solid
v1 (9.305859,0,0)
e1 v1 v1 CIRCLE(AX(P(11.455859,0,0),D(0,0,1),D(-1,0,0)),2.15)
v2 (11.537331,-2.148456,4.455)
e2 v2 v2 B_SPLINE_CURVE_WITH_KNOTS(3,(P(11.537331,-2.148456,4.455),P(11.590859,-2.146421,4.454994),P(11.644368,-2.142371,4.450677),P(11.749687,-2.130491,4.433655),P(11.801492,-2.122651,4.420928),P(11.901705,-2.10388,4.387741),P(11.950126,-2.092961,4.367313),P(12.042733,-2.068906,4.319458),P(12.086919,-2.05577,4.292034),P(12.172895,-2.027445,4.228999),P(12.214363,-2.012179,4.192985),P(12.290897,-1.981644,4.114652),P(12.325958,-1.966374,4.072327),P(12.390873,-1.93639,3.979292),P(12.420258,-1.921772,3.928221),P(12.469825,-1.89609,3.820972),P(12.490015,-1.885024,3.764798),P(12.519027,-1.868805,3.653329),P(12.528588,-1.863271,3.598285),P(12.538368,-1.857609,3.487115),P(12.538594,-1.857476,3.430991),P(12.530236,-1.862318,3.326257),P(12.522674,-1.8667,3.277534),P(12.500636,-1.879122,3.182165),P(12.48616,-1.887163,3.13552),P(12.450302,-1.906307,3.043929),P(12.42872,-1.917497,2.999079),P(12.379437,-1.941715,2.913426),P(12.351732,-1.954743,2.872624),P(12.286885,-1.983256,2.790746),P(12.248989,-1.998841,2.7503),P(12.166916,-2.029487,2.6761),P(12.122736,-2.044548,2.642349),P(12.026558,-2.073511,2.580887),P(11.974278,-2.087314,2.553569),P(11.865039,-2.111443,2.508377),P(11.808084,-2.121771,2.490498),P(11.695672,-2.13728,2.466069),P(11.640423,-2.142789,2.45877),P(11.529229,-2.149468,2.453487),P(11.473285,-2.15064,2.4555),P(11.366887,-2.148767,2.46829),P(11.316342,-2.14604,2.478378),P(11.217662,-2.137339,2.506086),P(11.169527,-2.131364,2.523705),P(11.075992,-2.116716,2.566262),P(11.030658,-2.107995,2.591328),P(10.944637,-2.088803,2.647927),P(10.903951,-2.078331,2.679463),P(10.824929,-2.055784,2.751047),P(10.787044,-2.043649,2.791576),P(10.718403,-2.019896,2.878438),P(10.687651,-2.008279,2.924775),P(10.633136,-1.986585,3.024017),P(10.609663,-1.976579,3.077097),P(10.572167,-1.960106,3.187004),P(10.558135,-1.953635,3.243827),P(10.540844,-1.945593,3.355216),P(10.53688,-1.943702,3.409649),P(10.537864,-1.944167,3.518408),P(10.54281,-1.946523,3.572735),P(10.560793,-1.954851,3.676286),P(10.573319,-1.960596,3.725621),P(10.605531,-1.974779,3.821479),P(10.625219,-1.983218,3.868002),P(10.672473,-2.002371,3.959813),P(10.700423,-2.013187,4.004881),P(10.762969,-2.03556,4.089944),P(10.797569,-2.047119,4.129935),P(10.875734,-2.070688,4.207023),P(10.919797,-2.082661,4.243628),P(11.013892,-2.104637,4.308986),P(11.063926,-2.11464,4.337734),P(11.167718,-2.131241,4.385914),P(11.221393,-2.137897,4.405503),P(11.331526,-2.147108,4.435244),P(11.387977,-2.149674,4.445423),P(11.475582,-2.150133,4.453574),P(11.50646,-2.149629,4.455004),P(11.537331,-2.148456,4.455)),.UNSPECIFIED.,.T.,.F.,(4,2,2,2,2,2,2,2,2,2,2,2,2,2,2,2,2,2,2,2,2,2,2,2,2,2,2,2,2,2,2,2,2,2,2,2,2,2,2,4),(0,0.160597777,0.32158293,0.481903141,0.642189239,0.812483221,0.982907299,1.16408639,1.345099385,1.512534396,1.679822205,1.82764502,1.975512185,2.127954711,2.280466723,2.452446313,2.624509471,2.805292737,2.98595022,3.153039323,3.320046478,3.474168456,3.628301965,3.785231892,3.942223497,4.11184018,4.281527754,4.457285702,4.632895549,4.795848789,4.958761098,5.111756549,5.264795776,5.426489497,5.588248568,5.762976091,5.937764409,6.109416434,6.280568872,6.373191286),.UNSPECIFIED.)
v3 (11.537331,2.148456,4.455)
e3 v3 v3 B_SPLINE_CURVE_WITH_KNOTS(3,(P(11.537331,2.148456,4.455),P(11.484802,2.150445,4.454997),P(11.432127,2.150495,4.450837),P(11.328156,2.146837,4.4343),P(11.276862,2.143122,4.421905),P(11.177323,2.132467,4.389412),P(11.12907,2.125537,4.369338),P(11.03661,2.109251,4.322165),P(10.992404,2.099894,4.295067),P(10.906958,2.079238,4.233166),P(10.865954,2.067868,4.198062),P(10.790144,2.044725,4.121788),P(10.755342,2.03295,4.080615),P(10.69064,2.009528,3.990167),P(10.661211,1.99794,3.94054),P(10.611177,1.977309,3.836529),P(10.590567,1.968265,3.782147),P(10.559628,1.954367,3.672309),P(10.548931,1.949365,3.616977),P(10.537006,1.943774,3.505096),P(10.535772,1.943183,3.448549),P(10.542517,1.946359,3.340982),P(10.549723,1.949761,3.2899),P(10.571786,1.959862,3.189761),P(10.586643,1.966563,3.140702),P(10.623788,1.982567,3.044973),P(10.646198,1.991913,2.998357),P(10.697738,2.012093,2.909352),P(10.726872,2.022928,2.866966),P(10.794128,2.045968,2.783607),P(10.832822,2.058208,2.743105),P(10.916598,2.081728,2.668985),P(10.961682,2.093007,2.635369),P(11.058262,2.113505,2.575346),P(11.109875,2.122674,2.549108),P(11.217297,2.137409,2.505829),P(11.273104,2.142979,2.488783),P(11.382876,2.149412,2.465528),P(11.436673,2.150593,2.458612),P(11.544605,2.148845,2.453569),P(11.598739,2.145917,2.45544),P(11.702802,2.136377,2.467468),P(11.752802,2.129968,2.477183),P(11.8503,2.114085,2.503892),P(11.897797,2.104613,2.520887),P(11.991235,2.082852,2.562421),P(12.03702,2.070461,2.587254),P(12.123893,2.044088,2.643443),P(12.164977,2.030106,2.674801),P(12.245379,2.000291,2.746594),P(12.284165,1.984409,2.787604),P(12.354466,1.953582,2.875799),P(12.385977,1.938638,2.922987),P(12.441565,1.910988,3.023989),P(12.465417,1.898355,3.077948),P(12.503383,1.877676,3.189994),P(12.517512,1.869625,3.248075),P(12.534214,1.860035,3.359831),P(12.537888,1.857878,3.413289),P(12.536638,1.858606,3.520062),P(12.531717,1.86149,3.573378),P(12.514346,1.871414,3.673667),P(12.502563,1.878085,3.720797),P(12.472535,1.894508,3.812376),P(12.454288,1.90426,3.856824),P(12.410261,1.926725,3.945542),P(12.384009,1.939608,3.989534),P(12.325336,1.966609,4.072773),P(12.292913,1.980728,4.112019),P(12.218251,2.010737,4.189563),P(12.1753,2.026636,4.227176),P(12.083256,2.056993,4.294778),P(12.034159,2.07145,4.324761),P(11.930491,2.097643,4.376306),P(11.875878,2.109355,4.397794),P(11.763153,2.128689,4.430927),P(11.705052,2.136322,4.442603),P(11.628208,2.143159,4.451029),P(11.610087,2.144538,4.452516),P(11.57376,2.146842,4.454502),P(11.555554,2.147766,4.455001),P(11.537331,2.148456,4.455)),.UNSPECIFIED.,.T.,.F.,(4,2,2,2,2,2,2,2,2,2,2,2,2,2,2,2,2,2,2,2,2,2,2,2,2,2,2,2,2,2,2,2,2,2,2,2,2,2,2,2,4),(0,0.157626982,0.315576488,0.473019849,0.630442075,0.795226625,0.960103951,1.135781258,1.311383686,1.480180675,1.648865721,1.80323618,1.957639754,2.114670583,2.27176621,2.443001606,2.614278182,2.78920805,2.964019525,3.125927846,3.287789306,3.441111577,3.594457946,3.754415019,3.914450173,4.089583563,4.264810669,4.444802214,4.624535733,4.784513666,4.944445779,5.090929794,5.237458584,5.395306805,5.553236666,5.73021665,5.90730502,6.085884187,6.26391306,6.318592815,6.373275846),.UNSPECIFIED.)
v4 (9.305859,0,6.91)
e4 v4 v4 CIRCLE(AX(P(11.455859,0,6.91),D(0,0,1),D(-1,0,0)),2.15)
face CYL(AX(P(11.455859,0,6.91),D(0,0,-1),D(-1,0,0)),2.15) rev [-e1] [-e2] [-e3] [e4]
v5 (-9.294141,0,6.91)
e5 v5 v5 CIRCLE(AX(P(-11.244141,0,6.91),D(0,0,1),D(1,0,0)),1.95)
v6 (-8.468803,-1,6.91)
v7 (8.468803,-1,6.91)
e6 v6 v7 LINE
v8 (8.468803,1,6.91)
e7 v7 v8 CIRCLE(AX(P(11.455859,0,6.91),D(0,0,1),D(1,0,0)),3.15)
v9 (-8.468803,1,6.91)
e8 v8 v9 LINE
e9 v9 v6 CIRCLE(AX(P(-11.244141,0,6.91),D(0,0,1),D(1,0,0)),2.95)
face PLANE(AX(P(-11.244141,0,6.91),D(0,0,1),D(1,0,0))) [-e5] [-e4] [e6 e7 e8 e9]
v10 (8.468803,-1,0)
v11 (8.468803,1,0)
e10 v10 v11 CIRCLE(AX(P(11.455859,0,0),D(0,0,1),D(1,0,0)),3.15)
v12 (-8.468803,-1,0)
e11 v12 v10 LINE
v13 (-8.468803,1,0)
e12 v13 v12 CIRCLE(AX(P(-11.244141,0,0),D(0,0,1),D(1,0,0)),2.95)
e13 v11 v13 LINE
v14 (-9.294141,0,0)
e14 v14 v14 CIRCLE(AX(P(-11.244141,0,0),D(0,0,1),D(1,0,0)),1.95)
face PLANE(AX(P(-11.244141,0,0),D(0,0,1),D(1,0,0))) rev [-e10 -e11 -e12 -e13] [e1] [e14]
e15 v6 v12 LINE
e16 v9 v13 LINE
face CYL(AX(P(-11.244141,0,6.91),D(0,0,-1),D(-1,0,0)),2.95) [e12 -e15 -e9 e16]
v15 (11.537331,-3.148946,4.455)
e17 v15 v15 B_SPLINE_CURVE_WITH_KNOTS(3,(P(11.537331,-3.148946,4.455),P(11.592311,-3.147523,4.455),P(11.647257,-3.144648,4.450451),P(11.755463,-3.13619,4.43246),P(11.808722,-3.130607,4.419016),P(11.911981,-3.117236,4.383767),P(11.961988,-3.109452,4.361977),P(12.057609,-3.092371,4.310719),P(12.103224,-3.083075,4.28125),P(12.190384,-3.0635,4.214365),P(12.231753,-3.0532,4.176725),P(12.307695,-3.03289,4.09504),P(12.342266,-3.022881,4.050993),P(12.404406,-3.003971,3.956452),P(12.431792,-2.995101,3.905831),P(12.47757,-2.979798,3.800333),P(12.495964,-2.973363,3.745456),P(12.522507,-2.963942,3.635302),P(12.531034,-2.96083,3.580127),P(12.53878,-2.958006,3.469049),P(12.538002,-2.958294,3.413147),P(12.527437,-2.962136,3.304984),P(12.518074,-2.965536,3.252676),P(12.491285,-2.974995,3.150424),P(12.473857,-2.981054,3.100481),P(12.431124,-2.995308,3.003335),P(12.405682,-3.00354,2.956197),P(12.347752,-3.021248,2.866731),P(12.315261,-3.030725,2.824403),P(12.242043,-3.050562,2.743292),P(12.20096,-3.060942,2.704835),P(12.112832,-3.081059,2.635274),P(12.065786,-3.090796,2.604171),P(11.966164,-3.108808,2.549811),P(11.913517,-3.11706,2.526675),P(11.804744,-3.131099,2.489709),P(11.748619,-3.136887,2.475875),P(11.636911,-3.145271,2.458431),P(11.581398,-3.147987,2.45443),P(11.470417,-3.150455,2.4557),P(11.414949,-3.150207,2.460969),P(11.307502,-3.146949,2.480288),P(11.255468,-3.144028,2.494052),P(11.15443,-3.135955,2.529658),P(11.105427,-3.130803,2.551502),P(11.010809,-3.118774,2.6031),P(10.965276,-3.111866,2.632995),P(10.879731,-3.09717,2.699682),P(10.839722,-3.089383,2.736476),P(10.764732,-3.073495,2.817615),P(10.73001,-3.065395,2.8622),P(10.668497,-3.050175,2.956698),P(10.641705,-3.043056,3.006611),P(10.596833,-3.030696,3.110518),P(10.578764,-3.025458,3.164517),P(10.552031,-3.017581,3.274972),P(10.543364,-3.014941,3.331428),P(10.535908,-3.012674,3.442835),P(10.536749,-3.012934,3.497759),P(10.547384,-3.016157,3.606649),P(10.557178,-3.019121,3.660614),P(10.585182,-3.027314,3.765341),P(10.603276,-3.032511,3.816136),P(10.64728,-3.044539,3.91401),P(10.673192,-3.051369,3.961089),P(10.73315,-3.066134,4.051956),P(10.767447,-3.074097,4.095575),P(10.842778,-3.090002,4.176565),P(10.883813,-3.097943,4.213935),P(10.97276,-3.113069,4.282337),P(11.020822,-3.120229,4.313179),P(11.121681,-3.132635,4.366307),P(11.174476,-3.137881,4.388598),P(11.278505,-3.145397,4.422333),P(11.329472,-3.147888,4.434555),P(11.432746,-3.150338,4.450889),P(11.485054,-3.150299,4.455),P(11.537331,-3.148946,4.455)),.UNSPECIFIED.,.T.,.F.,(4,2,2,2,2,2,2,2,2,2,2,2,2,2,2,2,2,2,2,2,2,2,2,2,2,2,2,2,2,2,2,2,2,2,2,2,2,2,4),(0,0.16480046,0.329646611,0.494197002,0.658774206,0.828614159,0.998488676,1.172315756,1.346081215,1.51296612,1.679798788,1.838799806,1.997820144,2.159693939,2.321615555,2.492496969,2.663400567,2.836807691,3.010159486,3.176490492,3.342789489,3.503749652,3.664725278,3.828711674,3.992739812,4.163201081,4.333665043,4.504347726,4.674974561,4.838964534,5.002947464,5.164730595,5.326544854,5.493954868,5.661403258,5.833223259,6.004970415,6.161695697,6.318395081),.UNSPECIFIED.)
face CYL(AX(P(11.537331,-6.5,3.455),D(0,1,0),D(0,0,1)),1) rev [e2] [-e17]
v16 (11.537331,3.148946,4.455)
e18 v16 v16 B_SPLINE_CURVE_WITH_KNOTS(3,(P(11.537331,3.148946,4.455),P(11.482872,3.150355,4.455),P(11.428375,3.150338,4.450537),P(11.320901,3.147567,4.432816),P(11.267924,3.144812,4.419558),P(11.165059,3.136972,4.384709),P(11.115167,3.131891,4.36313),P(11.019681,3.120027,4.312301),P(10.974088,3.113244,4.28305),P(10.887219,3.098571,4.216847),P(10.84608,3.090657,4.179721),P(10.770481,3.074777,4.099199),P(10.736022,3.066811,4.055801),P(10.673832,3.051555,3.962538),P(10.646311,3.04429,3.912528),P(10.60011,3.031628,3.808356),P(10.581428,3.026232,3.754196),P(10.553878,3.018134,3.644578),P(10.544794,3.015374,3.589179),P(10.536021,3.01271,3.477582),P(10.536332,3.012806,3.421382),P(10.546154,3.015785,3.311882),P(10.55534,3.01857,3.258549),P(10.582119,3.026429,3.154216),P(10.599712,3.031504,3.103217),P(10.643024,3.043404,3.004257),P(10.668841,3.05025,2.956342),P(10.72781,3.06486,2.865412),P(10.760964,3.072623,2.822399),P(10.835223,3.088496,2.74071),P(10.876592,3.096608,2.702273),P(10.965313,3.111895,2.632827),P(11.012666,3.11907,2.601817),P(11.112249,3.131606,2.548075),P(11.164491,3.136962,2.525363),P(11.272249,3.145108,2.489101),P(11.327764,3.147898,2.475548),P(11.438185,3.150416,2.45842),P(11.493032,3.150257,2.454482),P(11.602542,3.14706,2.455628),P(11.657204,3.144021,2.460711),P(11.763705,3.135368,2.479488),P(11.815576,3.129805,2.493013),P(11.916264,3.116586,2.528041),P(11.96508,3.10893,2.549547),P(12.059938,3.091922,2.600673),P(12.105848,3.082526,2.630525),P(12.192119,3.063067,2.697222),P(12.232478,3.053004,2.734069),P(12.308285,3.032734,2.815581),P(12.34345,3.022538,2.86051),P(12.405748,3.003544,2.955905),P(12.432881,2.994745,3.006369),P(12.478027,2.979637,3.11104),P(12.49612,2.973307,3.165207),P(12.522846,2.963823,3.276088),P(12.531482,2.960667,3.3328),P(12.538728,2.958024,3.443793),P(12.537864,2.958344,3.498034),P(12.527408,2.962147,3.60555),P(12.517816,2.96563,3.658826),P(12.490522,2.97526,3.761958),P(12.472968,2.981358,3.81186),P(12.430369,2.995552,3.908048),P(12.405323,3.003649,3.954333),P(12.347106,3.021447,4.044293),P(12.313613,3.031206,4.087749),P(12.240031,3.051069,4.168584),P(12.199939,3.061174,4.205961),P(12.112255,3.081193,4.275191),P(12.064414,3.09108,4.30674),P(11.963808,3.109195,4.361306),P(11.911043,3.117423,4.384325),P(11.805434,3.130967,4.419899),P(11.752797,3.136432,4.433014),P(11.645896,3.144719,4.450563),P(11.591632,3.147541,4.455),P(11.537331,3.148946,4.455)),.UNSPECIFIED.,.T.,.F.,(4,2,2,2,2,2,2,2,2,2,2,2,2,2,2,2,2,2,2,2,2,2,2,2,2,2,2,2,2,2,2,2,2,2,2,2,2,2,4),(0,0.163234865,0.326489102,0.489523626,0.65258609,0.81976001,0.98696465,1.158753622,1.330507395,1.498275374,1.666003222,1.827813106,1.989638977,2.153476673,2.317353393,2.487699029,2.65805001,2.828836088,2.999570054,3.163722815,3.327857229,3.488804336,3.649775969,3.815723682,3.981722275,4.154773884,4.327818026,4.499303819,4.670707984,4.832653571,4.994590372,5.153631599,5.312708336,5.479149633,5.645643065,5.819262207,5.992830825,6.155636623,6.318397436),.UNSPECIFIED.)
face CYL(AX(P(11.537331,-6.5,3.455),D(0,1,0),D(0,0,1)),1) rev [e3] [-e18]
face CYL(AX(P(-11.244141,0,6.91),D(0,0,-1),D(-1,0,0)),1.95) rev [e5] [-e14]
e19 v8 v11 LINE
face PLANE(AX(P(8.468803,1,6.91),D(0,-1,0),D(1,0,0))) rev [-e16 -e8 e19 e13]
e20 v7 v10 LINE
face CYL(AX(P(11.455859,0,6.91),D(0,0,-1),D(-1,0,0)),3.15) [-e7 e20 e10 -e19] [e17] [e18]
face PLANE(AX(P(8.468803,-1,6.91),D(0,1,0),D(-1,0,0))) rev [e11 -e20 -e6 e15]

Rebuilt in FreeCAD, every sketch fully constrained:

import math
import FreeCAD as App
import Part
import Sketcher
from FreeCAD import Vector

doc = App.newDocument("Part")
body = doc.addObject("PartDesign::Body", "Body")

sketch1 = body.newObject("Sketcher::SketchObject", "Sketch")
sketch1.AttachmentSupport = (doc.getObject("XY_Plane"), [""])
sketch1.MapMode = "FlatFace"
sketch1.addGeometry(Part.LineSegment(Vector(8.5, 1, 0), Vector(-8.5, 1, 0)), False)
sketch1.addGeometry(Part.ArcOfCircle(Part.Circle(Vector(-11.2, 0, 0), Vector(0, 0, 1), 3), math.radians(20), math.radians(340)), False)
sketch1.addGeometry(Part.LineSegment(Vector(-8.5, -1, 0), Vector(8.5, -1, 0)), False)
sketch1.addGeometry(Part.ArcOfCircle(Part.Circle(Vector(11.5, 0, 0), Vector(0, 0, 1), 3.1), math.radians(-161), math.radians(161)), False)
sketch1.addGeometry(Part.Circle(Vector(-11.2, 0, 0), Vector(0, 0, 1), 1.9), False)
sketch1.addGeometry(Part.Circle(Vector(11.5, 0, 0), Vector(0, 0, 1), 2.1), False)
sketch1.addConstraint(Sketcher.Constraint("Coincident", 0, 2, 1, 1))
sketch1.addConstraint(Sketcher.Constraint("Coincident", 1, 2, 2, 1))
sketch1.addConstraint(Sketcher.Constraint("Coincident", 2, 2, 3, 1))
sketch1.addConstraint(Sketcher.Constraint("Coincident", 3, 2, 0, 1))
sketch1.addConstraint(Sketcher.Constraint("Horizontal", 0))
sketch1.addConstraint(Sketcher.Constraint("Horizontal", 2))
sketch1.addConstraint(Sketcher.Constraint("Coincident", 4, 3, 1, 3))
sketch1.addConstraint(Sketcher.Constraint("Coincident", 5, 3, 3, 3))
sketch1.addConstraint(Sketcher.Constraint("Symmetric", 0, 2, 2, 2, -1, 1))
sketch1.addConstraint(Sketcher.Constraint("PointOnObject", 1, 3, -1))
sketch1.addConstraint(Sketcher.Constraint("PointOnObject", 3, 3, -1))
sketch1.addConstraint(Sketcher.Constraint("Diameter", 4, 3.9))
sketch1.addConstraint(Sketcher.Constraint("Diameter", 5, 4.3))
sketch1.addConstraint(Sketcher.Constraint("Radius", 1, 2.95))
sketch1.addConstraint(Sketcher.Constraint("Radius", 3, 3.15))
sketch1.addConstraint(Sketcher.Constraint("DistanceY", -1, 1, 0, 2, 1.0))
sketch1.addConstraint(Sketcher.Constraint("DistanceX", 1, 3, 3, 3, 22.7))
pad1 = body.newObject("PartDesign::Pad", "Pad")
pad1.Profile = sketch1
pad1.Length = 6.91

sketch2 = body.newObject("Sketcher::SketchObject", "Sketch001")
sketch2.AttachmentSupport = (doc.getObject("XZ_Plane"), [""])
sketch2.MapMode = "FlatFace"
sketch2.AttachmentOffset = App.Placement(Vector(0, 0, -1), App.Rotation())
sketch2.addGeometry(Part.Circle(Vector(11.5, 3.5, 0), Vector(0, 0, 1), 1), False)
sketch2.addConstraint(Sketcher.Constraint("Diameter", 0, 2.0))
sketch2.addConstraint(Sketcher.Constraint("DistanceY", -1, 1, 0, 3, 3.455))
sketch2.addConstraint(Sketcher.Constraint("DistanceX", -1, 1, 0, 3, 11.537331))
pocket1 = body.newObject("PartDesign::Pocket", "Pocket")
pocket1.Profile = sketch2
pocket1.Length = 15
pocket1.Midplane = True

doc.recompute()
